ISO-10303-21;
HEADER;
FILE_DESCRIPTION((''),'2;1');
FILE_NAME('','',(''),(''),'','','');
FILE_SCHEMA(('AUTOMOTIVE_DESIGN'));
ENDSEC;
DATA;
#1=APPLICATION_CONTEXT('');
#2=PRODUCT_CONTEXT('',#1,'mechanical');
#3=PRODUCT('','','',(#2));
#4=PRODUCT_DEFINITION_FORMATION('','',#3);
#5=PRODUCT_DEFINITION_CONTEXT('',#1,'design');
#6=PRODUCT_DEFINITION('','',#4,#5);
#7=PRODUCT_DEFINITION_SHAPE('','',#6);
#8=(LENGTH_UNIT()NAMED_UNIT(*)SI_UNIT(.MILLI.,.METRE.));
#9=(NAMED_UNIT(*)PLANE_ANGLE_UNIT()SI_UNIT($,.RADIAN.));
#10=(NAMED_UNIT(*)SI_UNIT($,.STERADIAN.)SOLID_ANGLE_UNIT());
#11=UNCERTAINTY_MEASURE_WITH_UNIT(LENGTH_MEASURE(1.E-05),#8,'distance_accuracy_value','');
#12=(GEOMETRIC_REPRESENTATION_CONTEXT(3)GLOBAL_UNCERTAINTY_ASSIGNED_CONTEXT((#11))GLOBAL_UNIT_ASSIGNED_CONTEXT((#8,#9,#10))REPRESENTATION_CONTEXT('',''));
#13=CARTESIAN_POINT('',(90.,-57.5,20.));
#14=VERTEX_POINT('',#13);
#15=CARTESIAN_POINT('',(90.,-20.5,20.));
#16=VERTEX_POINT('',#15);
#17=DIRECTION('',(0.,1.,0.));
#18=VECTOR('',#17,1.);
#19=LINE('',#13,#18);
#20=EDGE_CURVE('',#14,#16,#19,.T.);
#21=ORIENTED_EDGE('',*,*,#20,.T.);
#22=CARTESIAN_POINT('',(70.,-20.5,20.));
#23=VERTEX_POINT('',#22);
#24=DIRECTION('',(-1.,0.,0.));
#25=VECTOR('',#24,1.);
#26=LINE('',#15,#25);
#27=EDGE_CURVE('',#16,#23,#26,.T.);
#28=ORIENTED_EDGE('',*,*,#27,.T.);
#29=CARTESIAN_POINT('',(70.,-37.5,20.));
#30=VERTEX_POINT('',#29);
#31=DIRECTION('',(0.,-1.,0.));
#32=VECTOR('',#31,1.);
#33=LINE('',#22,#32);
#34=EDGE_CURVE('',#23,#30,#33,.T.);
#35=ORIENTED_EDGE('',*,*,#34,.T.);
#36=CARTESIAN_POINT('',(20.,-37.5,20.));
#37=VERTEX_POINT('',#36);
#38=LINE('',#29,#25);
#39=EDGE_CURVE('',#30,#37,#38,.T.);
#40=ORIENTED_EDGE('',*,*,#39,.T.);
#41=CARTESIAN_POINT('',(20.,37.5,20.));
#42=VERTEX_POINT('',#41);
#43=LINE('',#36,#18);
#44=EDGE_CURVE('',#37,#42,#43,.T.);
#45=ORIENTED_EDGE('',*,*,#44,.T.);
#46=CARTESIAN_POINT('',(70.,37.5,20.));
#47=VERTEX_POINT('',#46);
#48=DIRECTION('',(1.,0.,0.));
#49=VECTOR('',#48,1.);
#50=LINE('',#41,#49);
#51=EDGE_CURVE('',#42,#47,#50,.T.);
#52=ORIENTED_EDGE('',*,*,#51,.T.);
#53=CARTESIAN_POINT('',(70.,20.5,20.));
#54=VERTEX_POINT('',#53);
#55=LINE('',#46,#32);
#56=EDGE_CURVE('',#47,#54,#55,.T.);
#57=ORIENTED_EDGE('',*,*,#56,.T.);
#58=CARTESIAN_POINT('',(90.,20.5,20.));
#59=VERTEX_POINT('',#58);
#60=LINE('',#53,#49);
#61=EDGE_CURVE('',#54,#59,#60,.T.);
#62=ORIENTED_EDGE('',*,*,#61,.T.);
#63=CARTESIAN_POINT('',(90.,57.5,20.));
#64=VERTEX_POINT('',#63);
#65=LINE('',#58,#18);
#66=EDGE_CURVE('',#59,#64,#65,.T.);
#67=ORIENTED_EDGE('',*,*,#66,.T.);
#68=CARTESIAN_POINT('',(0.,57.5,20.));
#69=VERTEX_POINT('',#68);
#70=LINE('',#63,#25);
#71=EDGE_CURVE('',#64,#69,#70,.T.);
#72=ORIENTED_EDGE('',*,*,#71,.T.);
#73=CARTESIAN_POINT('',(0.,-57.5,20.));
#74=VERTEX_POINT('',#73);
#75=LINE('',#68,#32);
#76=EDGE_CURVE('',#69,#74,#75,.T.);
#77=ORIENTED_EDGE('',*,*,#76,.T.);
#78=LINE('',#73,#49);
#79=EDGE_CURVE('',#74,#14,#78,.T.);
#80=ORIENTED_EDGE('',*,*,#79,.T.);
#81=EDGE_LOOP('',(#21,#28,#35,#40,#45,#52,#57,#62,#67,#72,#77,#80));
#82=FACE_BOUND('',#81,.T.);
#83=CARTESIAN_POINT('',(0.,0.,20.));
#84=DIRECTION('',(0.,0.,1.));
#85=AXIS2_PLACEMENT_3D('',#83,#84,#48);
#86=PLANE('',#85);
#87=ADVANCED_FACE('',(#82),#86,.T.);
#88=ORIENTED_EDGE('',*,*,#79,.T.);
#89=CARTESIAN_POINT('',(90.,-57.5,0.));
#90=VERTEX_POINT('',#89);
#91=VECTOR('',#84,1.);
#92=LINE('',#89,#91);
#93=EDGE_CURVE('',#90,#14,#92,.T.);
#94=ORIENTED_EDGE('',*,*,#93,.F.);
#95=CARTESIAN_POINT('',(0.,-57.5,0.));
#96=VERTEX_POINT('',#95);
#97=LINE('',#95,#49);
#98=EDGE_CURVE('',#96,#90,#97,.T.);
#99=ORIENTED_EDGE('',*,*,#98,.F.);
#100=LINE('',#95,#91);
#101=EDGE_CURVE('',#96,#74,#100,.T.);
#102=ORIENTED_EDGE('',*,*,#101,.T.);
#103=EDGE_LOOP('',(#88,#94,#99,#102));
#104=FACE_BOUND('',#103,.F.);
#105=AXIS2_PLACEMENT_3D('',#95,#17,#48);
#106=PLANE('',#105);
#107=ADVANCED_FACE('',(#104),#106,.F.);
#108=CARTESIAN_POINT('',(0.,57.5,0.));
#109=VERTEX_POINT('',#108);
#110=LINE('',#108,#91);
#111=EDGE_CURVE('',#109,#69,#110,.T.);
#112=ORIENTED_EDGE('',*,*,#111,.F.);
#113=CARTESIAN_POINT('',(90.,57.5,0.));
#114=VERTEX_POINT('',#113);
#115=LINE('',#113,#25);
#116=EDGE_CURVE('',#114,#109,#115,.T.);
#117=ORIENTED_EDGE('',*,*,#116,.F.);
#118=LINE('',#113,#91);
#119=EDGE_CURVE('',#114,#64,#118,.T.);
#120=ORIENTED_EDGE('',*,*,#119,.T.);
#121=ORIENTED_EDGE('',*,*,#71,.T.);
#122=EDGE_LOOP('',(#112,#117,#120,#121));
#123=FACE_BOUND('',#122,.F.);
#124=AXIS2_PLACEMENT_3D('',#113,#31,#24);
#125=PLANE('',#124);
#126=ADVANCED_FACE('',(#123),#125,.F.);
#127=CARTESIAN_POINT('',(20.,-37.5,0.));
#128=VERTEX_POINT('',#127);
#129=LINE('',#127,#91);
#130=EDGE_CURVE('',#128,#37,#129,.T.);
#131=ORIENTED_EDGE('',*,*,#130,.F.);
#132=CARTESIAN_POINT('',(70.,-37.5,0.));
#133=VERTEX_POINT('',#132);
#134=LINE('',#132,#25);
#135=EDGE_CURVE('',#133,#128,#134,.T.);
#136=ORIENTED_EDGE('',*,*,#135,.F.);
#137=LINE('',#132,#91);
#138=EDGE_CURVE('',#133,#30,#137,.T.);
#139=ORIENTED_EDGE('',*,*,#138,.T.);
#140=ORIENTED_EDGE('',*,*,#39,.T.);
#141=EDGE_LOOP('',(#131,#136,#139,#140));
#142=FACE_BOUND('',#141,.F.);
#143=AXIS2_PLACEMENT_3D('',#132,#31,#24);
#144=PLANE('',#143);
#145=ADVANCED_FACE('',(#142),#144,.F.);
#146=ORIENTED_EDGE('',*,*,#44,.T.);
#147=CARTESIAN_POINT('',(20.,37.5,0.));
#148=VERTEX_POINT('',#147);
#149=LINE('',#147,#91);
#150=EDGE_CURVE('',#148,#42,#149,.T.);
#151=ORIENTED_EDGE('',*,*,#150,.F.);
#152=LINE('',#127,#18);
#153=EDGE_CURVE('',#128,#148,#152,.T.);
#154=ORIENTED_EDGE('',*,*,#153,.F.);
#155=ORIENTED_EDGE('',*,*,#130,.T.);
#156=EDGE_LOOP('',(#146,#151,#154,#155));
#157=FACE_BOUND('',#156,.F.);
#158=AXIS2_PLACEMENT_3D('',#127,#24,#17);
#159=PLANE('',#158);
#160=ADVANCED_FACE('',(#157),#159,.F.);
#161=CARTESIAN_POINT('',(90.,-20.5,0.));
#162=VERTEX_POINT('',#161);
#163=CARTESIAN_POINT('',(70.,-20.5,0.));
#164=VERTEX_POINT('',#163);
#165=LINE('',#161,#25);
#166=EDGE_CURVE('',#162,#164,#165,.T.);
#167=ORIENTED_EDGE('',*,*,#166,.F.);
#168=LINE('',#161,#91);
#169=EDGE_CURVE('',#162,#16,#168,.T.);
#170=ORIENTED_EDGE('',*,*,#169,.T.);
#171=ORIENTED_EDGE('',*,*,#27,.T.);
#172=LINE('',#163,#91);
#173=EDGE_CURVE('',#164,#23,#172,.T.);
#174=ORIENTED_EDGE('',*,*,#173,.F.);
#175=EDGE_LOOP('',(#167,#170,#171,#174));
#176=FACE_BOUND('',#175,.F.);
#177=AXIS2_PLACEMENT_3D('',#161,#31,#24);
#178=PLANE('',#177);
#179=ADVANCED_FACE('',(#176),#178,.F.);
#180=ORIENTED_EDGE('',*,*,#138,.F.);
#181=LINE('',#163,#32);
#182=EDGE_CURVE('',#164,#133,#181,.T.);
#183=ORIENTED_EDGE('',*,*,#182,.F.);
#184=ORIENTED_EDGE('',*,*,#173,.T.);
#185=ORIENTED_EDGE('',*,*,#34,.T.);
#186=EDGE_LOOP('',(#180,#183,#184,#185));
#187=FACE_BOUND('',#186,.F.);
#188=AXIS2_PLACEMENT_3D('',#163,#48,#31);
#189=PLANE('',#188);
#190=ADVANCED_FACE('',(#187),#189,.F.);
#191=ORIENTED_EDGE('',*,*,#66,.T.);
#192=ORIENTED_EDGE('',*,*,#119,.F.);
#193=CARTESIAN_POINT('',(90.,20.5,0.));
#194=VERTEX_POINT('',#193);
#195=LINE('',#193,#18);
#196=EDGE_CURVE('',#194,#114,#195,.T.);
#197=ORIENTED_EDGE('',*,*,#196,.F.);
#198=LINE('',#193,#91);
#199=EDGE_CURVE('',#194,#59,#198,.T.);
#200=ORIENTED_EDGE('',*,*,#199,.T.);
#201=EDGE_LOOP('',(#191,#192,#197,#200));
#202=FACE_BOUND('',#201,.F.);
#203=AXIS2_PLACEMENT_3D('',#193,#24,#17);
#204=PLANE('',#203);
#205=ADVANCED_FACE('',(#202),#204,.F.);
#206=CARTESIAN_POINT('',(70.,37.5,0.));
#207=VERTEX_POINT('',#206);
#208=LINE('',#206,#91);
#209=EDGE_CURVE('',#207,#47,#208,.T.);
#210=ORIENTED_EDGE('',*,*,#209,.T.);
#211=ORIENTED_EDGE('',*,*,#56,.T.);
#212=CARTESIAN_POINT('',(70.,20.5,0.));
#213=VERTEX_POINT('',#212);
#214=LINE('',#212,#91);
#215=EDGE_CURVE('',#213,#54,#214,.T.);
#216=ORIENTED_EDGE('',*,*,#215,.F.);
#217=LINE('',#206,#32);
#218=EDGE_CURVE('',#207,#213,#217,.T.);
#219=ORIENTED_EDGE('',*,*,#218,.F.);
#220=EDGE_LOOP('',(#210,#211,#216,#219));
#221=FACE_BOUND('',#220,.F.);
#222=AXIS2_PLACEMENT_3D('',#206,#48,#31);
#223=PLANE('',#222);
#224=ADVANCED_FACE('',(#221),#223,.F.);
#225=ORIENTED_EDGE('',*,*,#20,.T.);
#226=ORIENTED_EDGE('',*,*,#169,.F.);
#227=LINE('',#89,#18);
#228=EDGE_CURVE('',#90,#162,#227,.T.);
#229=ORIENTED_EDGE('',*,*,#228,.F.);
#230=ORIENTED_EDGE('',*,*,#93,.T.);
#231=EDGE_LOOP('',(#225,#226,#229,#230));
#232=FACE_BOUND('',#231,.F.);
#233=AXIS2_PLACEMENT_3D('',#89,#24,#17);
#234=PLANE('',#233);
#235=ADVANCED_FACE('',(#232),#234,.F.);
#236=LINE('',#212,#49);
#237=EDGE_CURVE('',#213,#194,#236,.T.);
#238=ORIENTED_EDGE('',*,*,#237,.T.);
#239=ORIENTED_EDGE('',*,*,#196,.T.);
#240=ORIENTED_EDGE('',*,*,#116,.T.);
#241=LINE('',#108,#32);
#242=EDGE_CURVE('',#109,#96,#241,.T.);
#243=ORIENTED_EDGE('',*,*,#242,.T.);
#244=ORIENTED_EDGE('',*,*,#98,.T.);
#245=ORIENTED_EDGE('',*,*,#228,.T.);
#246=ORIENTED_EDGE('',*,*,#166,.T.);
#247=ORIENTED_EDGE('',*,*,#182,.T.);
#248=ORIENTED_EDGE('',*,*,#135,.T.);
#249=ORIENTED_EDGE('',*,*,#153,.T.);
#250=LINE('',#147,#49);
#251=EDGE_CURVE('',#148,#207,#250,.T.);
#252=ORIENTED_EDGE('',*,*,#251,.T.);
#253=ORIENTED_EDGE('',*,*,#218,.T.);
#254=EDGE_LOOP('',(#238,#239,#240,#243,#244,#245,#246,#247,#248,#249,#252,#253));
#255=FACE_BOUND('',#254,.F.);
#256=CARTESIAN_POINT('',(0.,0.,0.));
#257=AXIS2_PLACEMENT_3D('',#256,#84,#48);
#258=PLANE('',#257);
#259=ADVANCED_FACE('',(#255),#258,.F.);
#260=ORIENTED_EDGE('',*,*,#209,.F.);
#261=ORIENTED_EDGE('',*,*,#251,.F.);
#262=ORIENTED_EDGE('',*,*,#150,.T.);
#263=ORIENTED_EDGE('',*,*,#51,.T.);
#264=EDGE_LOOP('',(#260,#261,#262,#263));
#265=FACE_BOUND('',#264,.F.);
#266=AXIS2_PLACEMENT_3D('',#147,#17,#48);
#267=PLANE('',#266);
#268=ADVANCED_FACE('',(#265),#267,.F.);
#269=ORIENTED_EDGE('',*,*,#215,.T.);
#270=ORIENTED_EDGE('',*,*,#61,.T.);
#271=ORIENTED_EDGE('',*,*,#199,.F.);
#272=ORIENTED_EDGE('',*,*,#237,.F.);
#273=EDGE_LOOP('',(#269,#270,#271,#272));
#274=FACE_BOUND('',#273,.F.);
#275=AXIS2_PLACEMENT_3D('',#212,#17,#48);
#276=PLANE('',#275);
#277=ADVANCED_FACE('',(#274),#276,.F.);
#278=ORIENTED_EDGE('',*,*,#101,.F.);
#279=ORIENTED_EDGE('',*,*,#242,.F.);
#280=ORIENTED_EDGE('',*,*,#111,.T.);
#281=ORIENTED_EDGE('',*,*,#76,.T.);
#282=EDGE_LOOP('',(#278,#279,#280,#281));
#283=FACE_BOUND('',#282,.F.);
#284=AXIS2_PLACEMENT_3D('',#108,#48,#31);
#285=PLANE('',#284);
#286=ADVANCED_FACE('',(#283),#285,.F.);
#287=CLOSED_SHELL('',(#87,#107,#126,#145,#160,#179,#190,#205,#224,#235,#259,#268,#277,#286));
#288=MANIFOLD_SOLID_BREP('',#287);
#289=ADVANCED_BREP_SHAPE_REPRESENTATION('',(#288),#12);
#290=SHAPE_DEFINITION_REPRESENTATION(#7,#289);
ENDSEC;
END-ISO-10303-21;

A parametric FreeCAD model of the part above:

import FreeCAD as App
import Part
import Sketcher

V = App.Vector
Q = App.Units.Quantity

doc = App.newDocument("Part")
params = doc.addObject("Spreadsheet::Sheet", "Params")
for row, (alias, value) in enumerate([
    ("sketch1_width", "20 mm"),
    ("sketch1_width2", "90 mm"),
    ("sketch1_width3", "50 mm"),
    ("sketch1_height", "17 mm"),
    ("sketch1_height2", "37 mm"),
    ("pad1_length", "20 mm"),
], start=1):
    params.set(f"A{row}", alias)
    params.set(f"B{row}", "=" + value)
    params.setAlias(f"B{row}", alias)

body = doc.addObject("PartDesign::Body", "Body")

sketch1 = body.newObject("Sketcher::SketchObject", "Sketch")
sketch1.AttachmentSupport = (doc.getObject("XY_Plane"), [""])
sketch1.MapMode = "FlatFace"
sketch1.addGeometry([
    Part.LineSegment(V(70, 38, 0), V(70, 20, 0)),
    Part.LineSegment(V(70, 20, 0), V(90, 20, 0)),
    Part.LineSegment(V(90, 20, 0), V(90, 58, 0)),
    Part.LineSegment(V(90, 58, 0), V(0, 58, 0)),
    Part.LineSegment(V(0, 58, 0), V(0, -58, 0)),
    Part.LineSegment(V(0, -58, 0), V(90, -58, 0)),
    Part.LineSegment(V(90, -58, 0), V(90, -20, 0)),
    Part.LineSegment(V(90, -20, 0), V(70, -20, 0)),
    Part.LineSegment(V(70, -20, 0), V(70, -38, 0)),
    Part.LineSegment(V(70, -38, 0), V(20, -38, 0)),
    Part.LineSegment(V(20, -38, 0), V(20, 38, 0)),
    Part.LineSegment(V(20, 38, 0), V(70, 38, 0)),
], False)
sketch1.addConstraint([
    Sketcher.Constraint("Coincident", 0, 2, 1, 1),
    Sketcher.Constraint("Coincident", 1, 2, 2, 1),
    Sketcher.Constraint("Coincident", 2, 2, 3, 1),
    Sketcher.Constraint("Coincident", 3, 2, 4, 1),
    Sketcher.Constraint("Coincident", 4, 2, 5, 1),
    Sketcher.Constraint("Coincident", 5, 2, 6, 1),
    Sketcher.Constraint("Coincident", 6, 2, 7, 1),
    Sketcher.Constraint("Coincident", 7, 2, 8, 1),
    Sketcher.Constraint("Coincident", 8, 2, 9, 1),
    Sketcher.Constraint("Coincident", 9, 2, 10, 1),
    Sketcher.Constraint("Coincident", 10, 2, 11, 1),
    Sketcher.Constraint("Coincident", 11, 2, 0, 1),
    Sketcher.Constraint("Vertical", 0),
    Sketcher.Constraint("Horizontal", 1),
    Sketcher.Constraint("Vertical", 2),
    Sketcher.Constraint("Horizontal", 3),
    Sketcher.Constraint("Vertical", 4),
    Sketcher.Constraint("Horizontal", 5),
    Sketcher.Constraint("Vertical", 6),
    Sketcher.Constraint("Horizontal", 7),
    Sketcher.Constraint("Vertical", 8),
    Sketcher.Constraint("Horizontal", 9),
    Sketcher.Constraint("Vertical", 10),
    Sketcher.Constraint("Horizontal", 11),
    Sketcher.Constraint("Symmetric", 3, 2, 4, 2, -1, 1),
    Sketcher.Constraint("Symmetric", 1, 2, 6, 2, -1),
    Sketcher.Constraint("Symmetric", 8, 2, 11, 2, -1),
    Sketcher.Constraint("DistanceX", 1, 1, 1, 2, Q("20 mm")),
    Sketcher.Constraint("DistanceX", 3, 2, 3, 1, Q("90 mm")),
    Sketcher.Constraint("DistanceX", 9, 2, 9, 1, Q("50 mm")),
    Sketcher.Constraint("DistanceY", 0, 2, 0, 1, Q("17 mm")),
    Sketcher.Constraint("DistanceY", 2, 1, 2, 2, Q("37 mm")),
    Sketcher.Constraint("DistanceY", 4, 2, 4, 1, Q("115 mm")),
])
sketch1.setExpression("Constraints[27]", "Params.sketch1_width")
sketch1.setExpression("Constraints[28]", "Params.sketch1_width2")
sketch1.setExpression("Constraints[29]", "Params.sketch1_width3")
sketch1.setExpression("Constraints[30]", "Params.sketch1_height")
sketch1.setExpression("Constraints[31]", "Params.sketch1_height2")
pad1 = body.newObject("PartDesign::Pad", "Pad")
pad1.Profile = sketch1
pad1.setExpression("Length", "Params.pad1_length")

doc.recompute()
